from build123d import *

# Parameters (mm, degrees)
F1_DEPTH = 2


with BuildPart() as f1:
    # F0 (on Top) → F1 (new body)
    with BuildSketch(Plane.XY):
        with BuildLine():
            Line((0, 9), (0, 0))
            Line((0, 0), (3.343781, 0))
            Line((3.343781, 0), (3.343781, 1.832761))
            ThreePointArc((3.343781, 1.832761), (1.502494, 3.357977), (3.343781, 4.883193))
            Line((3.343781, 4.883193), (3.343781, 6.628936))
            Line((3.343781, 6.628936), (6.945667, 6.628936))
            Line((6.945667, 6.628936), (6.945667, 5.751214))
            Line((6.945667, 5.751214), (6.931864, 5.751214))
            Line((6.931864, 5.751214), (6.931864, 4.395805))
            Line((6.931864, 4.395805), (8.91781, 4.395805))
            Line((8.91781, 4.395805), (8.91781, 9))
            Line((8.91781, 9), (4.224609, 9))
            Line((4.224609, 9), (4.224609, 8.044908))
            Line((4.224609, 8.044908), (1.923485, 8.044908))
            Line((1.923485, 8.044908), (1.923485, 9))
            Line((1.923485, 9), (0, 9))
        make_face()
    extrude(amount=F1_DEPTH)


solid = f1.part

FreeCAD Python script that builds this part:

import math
import FreeCAD as App
import Part
import Sketcher

V = App.Vector
Q = App.Units.Quantity

doc = App.newDocument("Part")
body = doc.addObject("PartDesign::Body", "Body")

# Sketch on XY plane
sketch1 = doc.addObject("Sketcher::SketchObject", "Sketch")
body.addObject(sketch1)
sketch1.AttachmentSupport = (doc.XY_Plane, [""])
sketch1.MapMode = "FlatFace"
sketch1.addGeometry(Part.LineSegment(V(0, 9, 0), V(0, 0, 0)), False)
sketch1.addGeometry(Part.LineSegment(V(0, 0, 0), V(3.344, 0, 0)), False)
sketch1.addGeometry(Part.LineSegment(V(3.344, 0, 0), V(3.344, 1.833, 0)), False)
sketch1.addGeometry(Part.ArcOfCircle(Part.Circle(V(3.055, 3.358, 0), V(0, 0, 1), 1.552), math.radians(79), math.radians(281)), False)
sketch1.addGeometry(Part.LineSegment(V(3.344, 4.883, 0), V(3.344, 6.629, 0)), False)
sketch1.addGeometry(Part.LineSegment(V(3.344, 6.629, 0), V(6.946, 6.629, 0)), False)
sketch1.addGeometry(Part.LineSegment(V(6.946, 6.629, 0), V(6.946, 5.751, 0)), False)
sketch1.addGeometry(Part.LineSegment(V(6.946, 5.751, 0), V(6.932, 5.751, 0)), False)
sketch1.addGeometry(Part.LineSegment(V(6.932, 5.751, 0), V(6.932, 4.396, 0)), False)
sketch1.addGeometry(Part.LineSegment(V(6.932, 4.396, 0), V(8.918, 4.396, 0)), False)
sketch1.addGeometry(Part.LineSegment(V(8.918, 4.396, 0), V(8.918, 9, 0)), False)
sketch1.addGeometry(Part.LineSegment(V(8.918, 9, 0), V(4.225, 9, 0)), False)
sketch1.addGeometry(Part.LineSegment(V(4.225, 9, 0), V(4.225, 8.045, 0)), False)
sketch1.addGeometry(Part.LineSegment(V(4.225, 8.045, 0), V(1.923, 8.045, 0)), False)
sketch1.addGeometry(Part.LineSegment(V(1.923, 8.045, 0), V(1.923, 9, 0)), False)
sketch1.addGeometry(Part.LineSegment(V(1.923, 9, 0), V(0, 9, 0)), False)
sketch1.addConstraint(Sketcher.Constraint("Coincident", 0, 2, 1, 1))
sketch1.addConstraint(Sketcher.Constraint("Coincident", 1, 2, 2, 1))
sketch1.addConstraint(Sketcher.Constraint("Coincident", 2, 2, 3, 2))
sketch1.addConstraint(Sketcher.Constraint("Coincident", 3, 1, 4, 1))
sketch1.addConstraint(Sketcher.Constraint("Coincident", 4, 2, 5, 1))
sketch1.addConstraint(Sketcher.Constraint("Coincident", 5, 2, 6, 1))
sketch1.addConstraint(Sketcher.Constraint("Coincident", 6, 2, 7, 1))
sketch1.addConstraint(Sketcher.Constraint("Coincident", 7, 2, 8, 1))
sketch1.addConstraint(Sketcher.Constraint("Coincident", 8, 2, 9, 1))
sketch1.addConstraint(Sketcher.Constraint("Coincident", 9, 2, 10, 1))
sketch1.addConstraint(Sketcher.Constraint("Coincident", 10, 2, 11, 1))
sketch1.addConstraint(Sketcher.Constraint("Coincident", 11, 2, 12, 1))
sketch1.addConstraint(Sketcher.Constraint("Coincident", 12, 2, 13, 1))
sketch1.addConstraint(Sketcher.Constraint("Coincident", 13, 2, 14, 1))
sketch1.addConstraint(Sketcher.Constraint("Coincident", 14, 2, 15, 1))
sketch1.addConstraint(Sketcher.Constraint("Coincident", 15, 2, 0, 1))
sketch1.addConstraint(Sketcher.Constraint("Vertical", 0))
sketch1.addConstraint(Sketcher.Constraint("Horizontal", 1))
sketch1.addConstraint(Sketcher.Constraint("Vertical", 2))
sketch1.addConstraint(Sketcher.Constraint("Vertical", 4))
sketch1.addConstraint(Sketcher.Constraint("Horizontal", 5))
sketch1.addConstraint(Sketcher.Constraint("Vertical", 6))
sketch1.addConstraint(Sketcher.Constraint("Horizontal", 7))
sketch1.addConstraint(Sketcher.Constraint("Vertical", 8))
sketch1.addConstraint(Sketcher.Constraint("Horizontal", 9))
sketch1.addConstraint(Sketcher.Constraint("Vertical", 10))
sketch1.addConstraint(Sketcher.Constraint("Horizontal", 11))
sketch1.addConstraint(Sketcher.Constraint("Vertical", 12))
sketch1.addConstraint(Sketcher.Constraint("Horizontal", 13))
sketch1.addConstraint(Sketcher.Constraint("Vertical", 14))
sketch1.addConstraint(Sketcher.Constraint("Horizontal", 15))
sketch1.addConstraint(Sketcher.Constraint("Coincident", 0, 2, -1, 1))
sketch1.addConstraint(Sketcher.Constraint("Horizontal", 11, 2, 14, 2))
sketch1.addConstraint(Sketcher.Constraint("Vertical", 2, 2, 3, 1))
sketch1.addConstraint(Sketcher.Constraint("DistanceY", 0, 2, 0, 1, Q("9 mm")))
sketch1.addConstraint(Sketcher.Constraint("DistanceX", 11, 2, 11, 1, Q("4.693201 mm")))
sketch1.addConstraint(Sketcher.Constraint("Radius", 3, Q("1.552344 mm")))
sketch1.addConstraint(Sketcher.Constraint("DistanceX", 1, 1, 1, 2, Q("3.343781 mm")))
sketch1.addConstraint(Sketcher.Constraint("DistanceY", 2, 1, 2, 2, Q("1.832761 mm")))
sketch1.addConstraint(Sketcher.Constraint("DistanceY", 8, 2, 8, 1, Q("1.355409 mm")))
sketch1.addConstraint(Sketcher.Constraint("DistanceX", 5, 1, 5, 2, Q("3.601886 mm")))
sketch1.addConstraint(Sketcher.Constraint("DistanceX", 7, 2, 7, 1, Q("0.013803 mm")))
sketch1.addConstraint(Sketcher.Constraint("DistanceX", 9, 1, 9, 2, Q("1.985946 mm")))
sketch1.addConstraint(Sketcher.Constraint("DistanceX", 13, 2, 13, 1, Q("2.301124 mm")))
sketch1.addConstraint(Sketcher.Constraint("DistanceY", 4, 1, 4, 2, Q("1.745743 mm")))
sketch1.addConstraint(Sketcher.Constraint("DistanceY", 6, 2, 6, 1, Q("0.877722 mm")))
sketch1.addConstraint(Sketcher.Constraint("DistanceY", 10, 1, 10, 2, Q("4.604195 mm")))
sketch1.addConstraint(Sketcher.Constraint("DistanceY", 12, 2, 12, 1, Q("0.955092 mm")))
pad1 = doc.addObject("PartDesign::Pad", "Pad")
body.addObject(pad1)
pad1.Profile = sketch1
pad1.Length = 2

doc.recompute()
